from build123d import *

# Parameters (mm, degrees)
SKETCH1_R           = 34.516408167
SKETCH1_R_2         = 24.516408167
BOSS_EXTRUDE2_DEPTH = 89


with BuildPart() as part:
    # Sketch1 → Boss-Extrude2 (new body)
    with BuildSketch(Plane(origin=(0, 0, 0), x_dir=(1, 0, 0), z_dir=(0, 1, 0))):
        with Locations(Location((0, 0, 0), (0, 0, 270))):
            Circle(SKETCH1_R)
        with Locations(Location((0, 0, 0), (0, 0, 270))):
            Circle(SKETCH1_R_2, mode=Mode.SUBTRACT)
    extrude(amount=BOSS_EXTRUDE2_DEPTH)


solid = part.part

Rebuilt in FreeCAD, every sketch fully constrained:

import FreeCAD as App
import Part
import Sketcher

V = App.Vector

doc = App.newDocument("Part")
body = doc.addObject("PartDesign::Body", "Body")

sketch1 = body.newObject("Sketcher::SketchObject", "Sketch")
sketch1.AttachmentSupport = (doc.getObject("XZ_Plane"), [""])
sketch1.MapMode = "FlatFace"
sketch1.addGeometry([
    Part.Circle(V(0, 0, 0), V(0, 0, 1), 34.516408),
    Part.Circle(V(0, 0, 0), V(0, 0, 1), 24.516408),
], False)
sketch1.addConstraint([
    Sketcher.Constraint("Coincident", 0, 3, -1, 1),
    Sketcher.Constraint("Coincident", 1, 3, -1, 1),
    Sketcher.Constraint("Diameter", 0, 69.032816),
    Sketcher.Constraint("Diameter", 1, 49.032816),
])
pad1 = body.newObject("PartDesign::Pad", "Pad")
pad1.Profile = sketch1
pad1.Length = 89
pad1.Reversed = True

doc.recompute()
